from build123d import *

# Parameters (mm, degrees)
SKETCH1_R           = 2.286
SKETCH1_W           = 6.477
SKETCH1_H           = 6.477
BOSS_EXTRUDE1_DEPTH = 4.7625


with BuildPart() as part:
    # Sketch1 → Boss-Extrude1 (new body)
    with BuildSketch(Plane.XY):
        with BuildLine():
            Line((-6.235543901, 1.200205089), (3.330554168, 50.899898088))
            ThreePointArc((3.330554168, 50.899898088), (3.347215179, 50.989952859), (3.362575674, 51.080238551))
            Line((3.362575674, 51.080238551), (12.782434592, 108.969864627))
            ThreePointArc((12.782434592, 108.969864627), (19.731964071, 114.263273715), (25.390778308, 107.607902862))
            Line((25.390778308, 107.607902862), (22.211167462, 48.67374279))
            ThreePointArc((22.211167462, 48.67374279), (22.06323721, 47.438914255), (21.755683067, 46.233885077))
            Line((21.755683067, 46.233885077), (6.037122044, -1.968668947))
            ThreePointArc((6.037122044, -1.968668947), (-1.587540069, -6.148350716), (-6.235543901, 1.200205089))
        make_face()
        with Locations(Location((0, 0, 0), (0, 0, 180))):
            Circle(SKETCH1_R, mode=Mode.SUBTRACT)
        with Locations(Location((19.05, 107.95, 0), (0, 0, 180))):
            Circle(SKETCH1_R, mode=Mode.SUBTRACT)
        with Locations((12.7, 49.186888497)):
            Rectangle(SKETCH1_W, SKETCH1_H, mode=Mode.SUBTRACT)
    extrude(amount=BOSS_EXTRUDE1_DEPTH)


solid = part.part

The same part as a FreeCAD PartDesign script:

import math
import FreeCAD as App
import Part
import Sketcher
from FreeCAD import Vector
Q = App.Units.Quantity


def add_polygon(sketch, points):
    """Adds a closed chain of lines whose ends are joined by coincident constraints."""
    first, n = sketch.GeometryCount, len(points)
    for a, b in zip(points, points[1:] + points[:1]):
        sketch.addGeometry(Part.LineSegment(App.Vector(*a, 0), App.Vector(*b, 0)), False)
    for i in range(n):
        sketch.addConstraint(Sketcher.Constraint("Coincident", first + i, 2, first + (i + 1) % n, 1))

doc = App.newDocument("Part")
body = doc.addObject("PartDesign::Body", "Body")

# Sketch on XY plane
sketch1 = doc.addObject("Sketcher::SketchObject", "Sketch")
body.addObject(sketch1)
sketch1.AttachmentSupport = (doc.XY_Plane, [""])
sketch1.MapMode = "FlatFace"
sketch1.addGeometry(Part.LineSegment(Vector(3.33, 50.9, 0), Vector(-6.24, 1.2, 0)), False)  # 0
sketch1.addGeometry(Part.ArcOfCircle(Part.Circle(Vector(0, 0, 0), Vector(0, 0, 1), 6.35), math.radians(169), math.radians(342)), False)  # 1
sketch1.addGeometry(Part.LineSegment(Vector(6.04, -1.97, 0), Vector(21.76, 46.23, 0)), False)  # 2
sketch1.addGeometry(Part.ArcOfCircle(Part.Circle(Vector(12.7, 49.19, 0), Vector(0, 0, 1), 9.53), math.radians(-18.06), math.radians(-3.09)), False)  # 3
sketch1.addGeometry(Part.LineSegment(Vector(22.21, 48.67, 0), Vector(25.39, 107.61, 0)), False)  # 4
sketch1.addGeometry(Part.ArcOfCircle(Part.Circle(Vector(19.05, 107.95, 0), Vector(0, 0, 1), 6.35), math.radians(-3), math.radians(171)), False)  # 5
sketch1.addGeometry(Part.LineSegment(Vector(12.78, 108.97, 0), Vector(3.36, 51.08, 0)), False)  # 6
sketch1.addGeometry(Part.ArcOfCircle(Part.Circle(Vector(-2.9, 52.1, 0), Vector(0, 0, 1), 6.35), math.radians(-10.89), math.radians(-9.24)), False)  # 7
add_polygon(sketch1, [(9.46, 45.95), (9.46, 52.43), (15.94, 52.43), (15.94, 45.95)])  # lines 8-11
sketch1.addGeometry(Part.Circle(Vector(0, 0, 0), Vector(0, 0, 1), 2.29), False)  # 12
sketch1.addGeometry(Part.Circle(Vector(19.05, 107.95, 0), Vector(0, 0, 1), 2.29), False)  # 13
sketch1.addConstraint([
    Sketcher.Constraint("Tangent", 0, 2, 1, 1),
    Sketcher.Constraint("Tangent", 1, 2, 2, 1),
    Sketcher.Constraint("Tangent", 2, 2, 3, 1),
    Sketcher.Constraint("Tangent", 3, 2, 4, 1),
    Sketcher.Constraint("Tangent", 4, 2, 5, 1),
    Sketcher.Constraint("Tangent", 5, 2, 6, 1),
    Sketcher.Constraint("Tangent", 6, 2, 7, 2),
    Sketcher.Constraint("Tangent", 7, 1, 0, 1),
    Sketcher.Constraint("Vertical", 8),
    Sketcher.Constraint("Horizontal", 9),
    Sketcher.Constraint("Vertical", 10),
    Sketcher.Constraint("Horizontal", 11),
    Sketcher.Constraint("Coincident", 1, 3, -1, 1),
    Sketcher.Constraint("Coincident", 12, 3, -1, 1),
    Sketcher.Constraint("Coincident", 13, 3, 5, 3),
    Sketcher.Constraint("Equal", 1, 5),
    Sketcher.Constraint("Equal", 5, 7),
    Sketcher.Constraint("Equal", 12, 13),
    Sketcher.Constraint("Equal", 11, 8),
    Sketcher.Constraint("Diameter", 12, Q("0.18 in")),
    Sketcher.Constraint("Radius", 1, Q("0.25 in")),
    Sketcher.Constraint("Radius", 3, Q("0.375 in")),
    Sketcher.Constraint("DistanceX", -1, 1, 3, 3, Q("0.5 in")),
    Sketcher.Constraint("DistanceX", 9, 1, 9, 2, Q("0.255 in")),
    Sketcher.Constraint("DistanceX", -1, 1, 5, 3, Q("0.75 in")),
    Sketcher.Constraint("DistanceY", -1, 1, 5, 3, Q("4.25 in")),
    Sketcher.Constraint("DistanceX", -1, 1, 8, 2, Q("0.3725 in")),
    Sketcher.Constraint("DistanceY", 2, 2, 4, 2, Q("2.4162999 in")),
    Sketcher.Constraint("DistanceY", 7, 1, 6, 2, Q("0.0071 in")),
    Sketcher.Constraint("DistanceY", 3, 3, 8, 2, Q("0.1275 in")),
    Sketcher.Constraint("DistanceY", -1, 1, 7, 1, 50.899898),
])
pad1 = doc.addObject("PartDesign::Pad", "Pad")
body.addObject(pad1)
pad1.Profile = sketch1
pad1.Length = Q("0.1875 in")

doc.recompute()
